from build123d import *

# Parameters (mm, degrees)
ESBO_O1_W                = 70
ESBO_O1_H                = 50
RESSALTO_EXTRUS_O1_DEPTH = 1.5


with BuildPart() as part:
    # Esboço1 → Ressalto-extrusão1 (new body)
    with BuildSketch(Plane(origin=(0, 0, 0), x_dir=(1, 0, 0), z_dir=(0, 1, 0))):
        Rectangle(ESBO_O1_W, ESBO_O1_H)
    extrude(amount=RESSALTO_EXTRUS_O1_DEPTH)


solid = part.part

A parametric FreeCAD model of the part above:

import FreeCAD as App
import Part
import Sketcher
Q = App.Units.Quantity

doc = App.newDocument("Part")
params = doc.addObject("Spreadsheet::Sheet", "Params")
for row, (alias, value) in enumerate([
    ("sketch1_width", "70 mm"),
    ("sketch1_height", "50 mm"),
    ("pad1_length", "1.5 mm"),
], start=1):
    params.set(f"A{row}", alias)
    params.set(f"B{row}", "=" + value)
    params.setAlias(f"B{row}", alias)

body = doc.addObject("PartDesign::Body", "Body")

# Sketch on XZ plane
sketch1 = body.newObject("Sketcher::SketchObject", "Sketch")
sketch1.AttachmentSupport = (doc.getObject("XZ_Plane"), [""])
sketch1.MapMode = "FlatFace"
sketch1.addGeometry([
    Part.LineSegment(App.Vector(-35, -25, 0), App.Vector(-35, 25, 0)),
    Part.LineSegment(App.Vector(-35, 25, 0), App.Vector(35, 25, 0)),
    Part.LineSegment(App.Vector(35, 25, 0), App.Vector(35, -25, 0)),
    Part.LineSegment(App.Vector(35, -25, 0), App.Vector(-35, -25, 0)),
], False)
sketch1.addConstraint([
    Sketcher.Constraint("Coincident", 0, 2, 1, 1),
    Sketcher.Constraint("Coincident", 1, 2, 2, 1),
    Sketcher.Constraint("Coincident", 2, 2, 3, 1),
    Sketcher.Constraint("Coincident", 3, 2, 0, 1),
    Sketcher.Constraint("Vertical", 0),
    Sketcher.Constraint("Horizontal", 1),
    Sketcher.Constraint("Vertical", 2),
    Sketcher.Constraint("Horizontal", 3),
    Sketcher.Constraint("Symmetric", 0, 2, 2, 2, -1, 1),
    Sketcher.Constraint("DistanceX", 1, 1, 1, 2, Q("70 mm")),
    Sketcher.Constraint("DistanceY", 0, 1, 0, 2, Q("50 mm")),
])
sketch1.setExpression("Constraints[9]", "Params.sketch1_width")
sketch1.setExpression("Constraints[10]", "Params.sketch1_height")
pad1 = body.newObject("PartDesign::Pad", "Pad")
pad1.Profile = sketch1
pad1.setExpression("Length", "Params.pad1_length")
pad1.Reversed = True

doc.recompute()
